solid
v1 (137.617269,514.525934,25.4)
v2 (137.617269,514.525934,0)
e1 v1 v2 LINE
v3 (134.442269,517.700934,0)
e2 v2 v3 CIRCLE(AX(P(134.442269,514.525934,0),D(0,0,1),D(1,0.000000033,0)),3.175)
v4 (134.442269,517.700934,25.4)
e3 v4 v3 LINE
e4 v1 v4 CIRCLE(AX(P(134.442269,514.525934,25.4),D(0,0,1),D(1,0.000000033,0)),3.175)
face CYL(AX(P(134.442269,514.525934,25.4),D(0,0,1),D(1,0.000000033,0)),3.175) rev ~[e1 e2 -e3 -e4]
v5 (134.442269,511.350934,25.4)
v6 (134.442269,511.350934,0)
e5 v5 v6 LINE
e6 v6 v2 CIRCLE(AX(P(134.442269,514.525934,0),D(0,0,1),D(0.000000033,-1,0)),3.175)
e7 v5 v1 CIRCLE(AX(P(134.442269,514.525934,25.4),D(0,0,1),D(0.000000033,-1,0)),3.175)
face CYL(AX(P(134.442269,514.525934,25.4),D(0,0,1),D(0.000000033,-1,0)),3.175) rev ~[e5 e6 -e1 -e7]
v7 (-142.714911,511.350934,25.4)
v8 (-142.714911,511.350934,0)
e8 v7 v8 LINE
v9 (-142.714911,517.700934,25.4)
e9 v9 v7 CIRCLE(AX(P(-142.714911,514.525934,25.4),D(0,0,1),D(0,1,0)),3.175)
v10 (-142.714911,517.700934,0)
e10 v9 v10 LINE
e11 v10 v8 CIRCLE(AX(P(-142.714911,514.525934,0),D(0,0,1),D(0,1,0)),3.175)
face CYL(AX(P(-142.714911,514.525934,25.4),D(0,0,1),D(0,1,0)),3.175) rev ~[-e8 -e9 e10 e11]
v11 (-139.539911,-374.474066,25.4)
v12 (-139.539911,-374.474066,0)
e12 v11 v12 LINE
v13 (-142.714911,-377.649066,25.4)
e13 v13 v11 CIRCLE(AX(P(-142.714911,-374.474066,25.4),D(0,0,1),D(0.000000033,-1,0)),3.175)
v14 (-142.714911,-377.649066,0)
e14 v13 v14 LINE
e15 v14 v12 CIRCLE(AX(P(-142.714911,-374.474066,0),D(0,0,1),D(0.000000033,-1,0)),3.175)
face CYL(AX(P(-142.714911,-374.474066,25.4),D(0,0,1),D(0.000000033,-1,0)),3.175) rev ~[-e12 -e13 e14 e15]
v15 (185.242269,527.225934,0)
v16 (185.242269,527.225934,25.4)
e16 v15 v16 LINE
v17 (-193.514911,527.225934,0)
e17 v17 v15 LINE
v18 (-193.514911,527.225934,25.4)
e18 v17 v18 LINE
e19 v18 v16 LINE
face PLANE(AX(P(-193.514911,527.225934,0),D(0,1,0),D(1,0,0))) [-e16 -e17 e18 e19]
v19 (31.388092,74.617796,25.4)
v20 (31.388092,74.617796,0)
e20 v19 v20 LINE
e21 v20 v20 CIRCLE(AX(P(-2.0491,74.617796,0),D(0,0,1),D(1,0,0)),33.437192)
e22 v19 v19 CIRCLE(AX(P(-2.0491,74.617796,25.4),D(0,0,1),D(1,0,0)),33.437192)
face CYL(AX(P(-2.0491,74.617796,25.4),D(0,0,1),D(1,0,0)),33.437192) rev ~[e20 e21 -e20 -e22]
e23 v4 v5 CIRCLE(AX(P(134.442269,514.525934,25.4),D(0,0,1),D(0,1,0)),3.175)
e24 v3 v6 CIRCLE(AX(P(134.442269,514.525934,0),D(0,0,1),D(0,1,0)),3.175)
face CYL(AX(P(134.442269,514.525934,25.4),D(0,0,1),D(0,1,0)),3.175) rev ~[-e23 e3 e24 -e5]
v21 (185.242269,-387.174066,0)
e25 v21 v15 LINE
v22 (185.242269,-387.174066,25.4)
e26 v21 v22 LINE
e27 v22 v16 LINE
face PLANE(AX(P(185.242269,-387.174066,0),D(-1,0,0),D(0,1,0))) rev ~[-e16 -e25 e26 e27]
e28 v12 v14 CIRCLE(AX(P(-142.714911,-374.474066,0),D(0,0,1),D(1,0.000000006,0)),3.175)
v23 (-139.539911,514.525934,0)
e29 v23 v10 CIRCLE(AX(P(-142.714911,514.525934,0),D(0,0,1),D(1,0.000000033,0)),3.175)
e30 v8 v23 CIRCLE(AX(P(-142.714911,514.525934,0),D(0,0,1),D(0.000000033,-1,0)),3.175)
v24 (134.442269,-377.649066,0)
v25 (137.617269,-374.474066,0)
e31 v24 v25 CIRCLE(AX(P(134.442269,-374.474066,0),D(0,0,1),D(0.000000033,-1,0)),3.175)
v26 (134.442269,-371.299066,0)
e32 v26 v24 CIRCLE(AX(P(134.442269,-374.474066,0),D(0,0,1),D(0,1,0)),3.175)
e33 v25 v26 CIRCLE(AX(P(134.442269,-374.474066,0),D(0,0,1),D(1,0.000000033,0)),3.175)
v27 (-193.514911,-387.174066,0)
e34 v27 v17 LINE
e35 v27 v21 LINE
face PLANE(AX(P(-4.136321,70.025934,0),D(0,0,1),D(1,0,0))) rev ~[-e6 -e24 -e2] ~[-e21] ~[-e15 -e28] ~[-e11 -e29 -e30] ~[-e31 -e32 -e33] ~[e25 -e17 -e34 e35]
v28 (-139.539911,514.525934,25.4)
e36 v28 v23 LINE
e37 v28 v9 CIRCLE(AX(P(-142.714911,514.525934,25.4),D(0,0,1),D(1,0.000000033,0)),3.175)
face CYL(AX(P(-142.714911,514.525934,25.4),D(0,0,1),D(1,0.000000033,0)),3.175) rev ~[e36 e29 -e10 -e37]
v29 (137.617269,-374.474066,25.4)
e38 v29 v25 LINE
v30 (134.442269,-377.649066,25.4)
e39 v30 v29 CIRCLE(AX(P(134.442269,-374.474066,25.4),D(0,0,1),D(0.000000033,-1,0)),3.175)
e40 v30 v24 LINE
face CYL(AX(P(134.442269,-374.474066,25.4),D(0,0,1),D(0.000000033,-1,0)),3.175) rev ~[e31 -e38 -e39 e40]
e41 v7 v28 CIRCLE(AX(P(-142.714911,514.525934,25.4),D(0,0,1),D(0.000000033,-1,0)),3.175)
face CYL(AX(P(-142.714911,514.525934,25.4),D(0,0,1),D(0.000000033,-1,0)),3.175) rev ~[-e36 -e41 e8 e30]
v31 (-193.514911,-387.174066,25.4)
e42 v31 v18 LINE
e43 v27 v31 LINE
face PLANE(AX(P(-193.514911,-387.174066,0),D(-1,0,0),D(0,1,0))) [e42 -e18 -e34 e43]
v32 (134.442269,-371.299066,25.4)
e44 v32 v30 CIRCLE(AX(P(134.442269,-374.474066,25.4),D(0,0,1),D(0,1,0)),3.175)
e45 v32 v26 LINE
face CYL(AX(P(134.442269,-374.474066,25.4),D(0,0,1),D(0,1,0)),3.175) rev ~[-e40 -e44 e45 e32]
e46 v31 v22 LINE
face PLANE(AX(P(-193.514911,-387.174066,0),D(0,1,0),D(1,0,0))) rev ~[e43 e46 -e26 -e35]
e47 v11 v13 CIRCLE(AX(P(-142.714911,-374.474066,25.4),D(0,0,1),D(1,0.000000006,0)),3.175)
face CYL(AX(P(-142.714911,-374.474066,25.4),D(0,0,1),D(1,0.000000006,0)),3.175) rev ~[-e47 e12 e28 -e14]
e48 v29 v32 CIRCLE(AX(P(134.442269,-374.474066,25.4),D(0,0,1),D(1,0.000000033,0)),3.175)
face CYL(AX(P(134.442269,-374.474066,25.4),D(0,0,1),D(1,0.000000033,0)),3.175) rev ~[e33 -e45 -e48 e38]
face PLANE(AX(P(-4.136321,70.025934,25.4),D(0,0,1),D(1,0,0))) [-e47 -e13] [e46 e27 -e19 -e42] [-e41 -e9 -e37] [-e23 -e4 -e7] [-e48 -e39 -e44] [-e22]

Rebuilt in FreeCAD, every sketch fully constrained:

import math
import FreeCAD as App
import Part
import Sketcher

V = App.Vector
Q = App.Units.Quantity

doc = App.newDocument("Part")
params = doc.addObject("Spreadsheet::Sheet", "Params")
for row, (alias, value) in enumerate([
    ("sketch1_height", "36 in"),
    ("pad1_length", "1 in"),
    ("sketch2_radius", "0.125 in"),
    ("pocket2_length", "1 in"),
], start=1):
    params.set(f"A{row}", alias)
    params.set(f"B{row}", "=" + value)
    params.setAlias(f"B{row}", alias)

body = doc.addObject("PartDesign::Body", "Body")

# Sketch on XY plane
sketch1 = body.newObject("Sketcher::SketchObject", "Sketch")
sketch1.AttachmentSupport = (doc.getObject("XY_Plane"), [""])
sketch1.MapMode = "FlatFace"
sketch1.addGeometry([
    Part.LineSegment(V(-194, 527, 0), V(-194, -387, 0)),
    Part.LineSegment(V(-194, -387, 0), V(185, -387, 0)),
    Part.LineSegment(V(185, -387, 0), V(185, 527, 0)),
    Part.LineSegment(V(185, 527, 0), V(-194, 527, 0)),
], False)
sketch1.addConstraint([
    Sketcher.Constraint("Coincident", 0, 2, 1, 1),
    Sketcher.Constraint("Coincident", 1, 2, 2, 1),
    Sketcher.Constraint("Coincident", 2, 2, 3, 1),
    Sketcher.Constraint("Coincident", 3, 2, 0, 1),
    Sketcher.Constraint("Vertical", 0),
    Sketcher.Constraint("Horizontal", 1),
    Sketcher.Constraint("Vertical", 2),
    Sketcher.Constraint("Horizontal", 3),
    Sketcher.Constraint("DistanceY", 0, 2, 0, 1, Q("36 in")),
    Sketcher.Constraint("DistanceX", 1, 1, 1, 2, Q("14.9117 in")),
    Sketcher.Constraint("DistanceX", 0, 2, -1, 1, 193.514911),
    Sketcher.Constraint("DistanceY", 0, 2, -1, 1, 387.174066),
])
sketch1.setExpression("Constraints[8]", "Params.sketch1_height")
pad1 = body.newObject("PartDesign::Pad", "Pad")
pad1.Profile = sketch1
pad1.setExpression("Length", "Params.pad1_length")

# Sketch on XY plane
sketch2 = body.newObject("Sketcher::SketchObject", "Sketch001")
sketch2.AttachmentSupport = (doc.getObject("XY_Plane"), [""])
sketch2.MapMode = "FlatFace"
sketch2.AttachmentOffset = App.Placement(V(0, 0, 1 * 25.4), App.Rotation())
sketch2.addGeometry([
    Part.ArcOfCircle(Part.Circle(V(-142.7, 514.5, 0), V(0, 0, 1), 3.2), math.radians(-90), math.radians(0)),  # 0
    Part.ArcOfCircle(Part.Circle(V(-142.7, 514.5, 0), V(0, 0, 1), 3.2), math.radians(0), math.radians(90)),  # 1
    Part.ArcOfCircle(Part.Circle(V(-142.7, 514.5, 0), V(0, 0, 1), 3.2), math.radians(90), math.radians(270)),  # 2
    Part.ArcOfCircle(Part.Circle(V(134.4, 514.5, 0), V(0, 0, 1), 3.2), math.radians(-90), math.radians(0)),  # 3
    Part.ArcOfCircle(Part.Circle(V(134.4, 514.5, 0), V(0, 0, 1), 3.2), math.radians(0), math.radians(90)),  # 4
    Part.ArcOfCircle(Part.Circle(V(134.4, 514.5, 0), V(0, 0, 1), 3.2), math.radians(90), math.radians(270)),  # 5
    Part.ArcOfCircle(Part.Circle(V(-142.7, -374.5, 0), V(0, 0, 1), 3.2), math.radians(-90), math.radians(0)),  # 6
    Part.ArcOfCircle(Part.Circle(V(-142.7, -374.5, 0), V(0, 0, 1), 3.2), math.radians(0), math.radians(270)),  # 7
    Part.ArcOfCircle(Part.Circle(V(134.4, -374.5, 0), V(0, 0, 1), 3.2), math.radians(-90), math.radians(0)),  # 8
    Part.ArcOfCircle(Part.Circle(V(134.4, -374.5, 0), V(0, 0, 1), 3.2), math.radians(0), math.radians(90)),  # 9
    Part.ArcOfCircle(Part.Circle(V(134.4, -374.5, 0), V(0, 0, 1), 3.2), math.radians(90), math.radians(270)),  # 10
], False)
sketch2.addConstraint([
    Sketcher.Constraint("Tangent", 0, 2, 1, 1),
    Sketcher.Constraint("Tangent", 1, 2, 2, 1),
    Sketcher.Constraint("Tangent", 2, 2, 0, 1),
    Sketcher.Constraint("Tangent", 3, 2, 4, 1),
    Sketcher.Constraint("Tangent", 4, 2, 5, 1),
    Sketcher.Constraint("Tangent", 5, 2, 3, 1),
    Sketcher.Constraint("Tangent", 6, 1, 7, 2),
    Sketcher.Constraint("Coincident", 7, 1, 6, 2),
    Sketcher.Constraint("Tangent", 8, 2, 9, 1),
    Sketcher.Constraint("Tangent", 9, 2, 10, 1),
    Sketcher.Constraint("Tangent", 10, 2, 8, 1),
    Sketcher.Constraint("Equal", 2, 3),
    Sketcher.Constraint("Equal", 5, 6),
    Sketcher.Constraint("Equal", 7, 8),
    Sketcher.Constraint("Horizontal", 2, 3, 3, 3),
    Sketcher.Constraint("Horizontal", 7, 3, 8, 3),
    Sketcher.Constraint("Horizontal", 5, 3, 0, 2),
    Sketcher.Constraint("Horizontal", 0, 2, 3, 2),
    Sketcher.Constraint("Horizontal", 10, 3, 7, 1),
    Sketcher.Constraint("Horizontal", 7, 1, 8, 2),
    Sketcher.Constraint("Vertical", 2, 3, 6, 3),
    Sketcher.Constraint("Vertical", 5, 3, 8, 3),
    Sketcher.Constraint("Vertical", 7, 3, 1, 2),
    Sketcher.Constraint("Vertical", 1, 2, 2, 2),
    Sketcher.Constraint("Vertical", 10, 3, 4, 2),
    Sketcher.Constraint("Vertical", 4, 2, 5, 2),
    Sketcher.Constraint("Vertical", 2, 2, 6, 1),
    Sketcher.Constraint("Vertical", 5, 2, 9, 2),
    Sketcher.Constraint("Vertical", 9, 2, 10, 2),
    Sketcher.Constraint("Radius", 0, Q("0.125 in")),
    Sketcher.Constraint("DistanceY", 6, 3, 1, 3, Q("35 in")),
    Sketcher.Constraint("DistanceX", 2, 3, 3, 3, Q("10.9117 in")),
    Sketcher.Constraint("DistanceX", 0, 3, -1, 1, 142.714911),
    Sketcher.Constraint("DistanceY", -1, 1, 0, 3, 514.525934),
])
sketch2.setExpression("Constraints[29]", "Params.sketch2_radius")
pocket1 = body.newObject("PartDesign::Pocket", "Pocket")
pocket1.Profile = sketch2
pocket1.Type = "ThroughAll"

# Sketch on XY plane
sketch3 = body.newObject("Sketcher::SketchObject", "Sketch002")
sketch3.AttachmentSupport = (doc.getObject("XY_Plane"), [""])
sketch3.MapMode = "FlatFace"
sketch3.AttachmentOffset = App.Placement(V(0, 0, 1 * 25.4), App.Rotation())
sketch3.addGeometry(Part.Circle(V(-2, 75, 0), V(0, 0, 1), 33), False)
sketch3.addConstraint([
    Sketcher.Constraint("Diameter", 0, 66.874384),
    Sketcher.Constraint("DistanceX", 0, 3, -1, 1, 2.0491),
    Sketcher.Constraint("DistanceY", -1, 1, 0, 3, 74.617796),
])
pocket2 = body.newObject("PartDesign::Pocket", "Pocket001")
pocket2.Profile = sketch3
pocket2.setExpression("Length", "Params.pocket2_length")

doc.recompute()
